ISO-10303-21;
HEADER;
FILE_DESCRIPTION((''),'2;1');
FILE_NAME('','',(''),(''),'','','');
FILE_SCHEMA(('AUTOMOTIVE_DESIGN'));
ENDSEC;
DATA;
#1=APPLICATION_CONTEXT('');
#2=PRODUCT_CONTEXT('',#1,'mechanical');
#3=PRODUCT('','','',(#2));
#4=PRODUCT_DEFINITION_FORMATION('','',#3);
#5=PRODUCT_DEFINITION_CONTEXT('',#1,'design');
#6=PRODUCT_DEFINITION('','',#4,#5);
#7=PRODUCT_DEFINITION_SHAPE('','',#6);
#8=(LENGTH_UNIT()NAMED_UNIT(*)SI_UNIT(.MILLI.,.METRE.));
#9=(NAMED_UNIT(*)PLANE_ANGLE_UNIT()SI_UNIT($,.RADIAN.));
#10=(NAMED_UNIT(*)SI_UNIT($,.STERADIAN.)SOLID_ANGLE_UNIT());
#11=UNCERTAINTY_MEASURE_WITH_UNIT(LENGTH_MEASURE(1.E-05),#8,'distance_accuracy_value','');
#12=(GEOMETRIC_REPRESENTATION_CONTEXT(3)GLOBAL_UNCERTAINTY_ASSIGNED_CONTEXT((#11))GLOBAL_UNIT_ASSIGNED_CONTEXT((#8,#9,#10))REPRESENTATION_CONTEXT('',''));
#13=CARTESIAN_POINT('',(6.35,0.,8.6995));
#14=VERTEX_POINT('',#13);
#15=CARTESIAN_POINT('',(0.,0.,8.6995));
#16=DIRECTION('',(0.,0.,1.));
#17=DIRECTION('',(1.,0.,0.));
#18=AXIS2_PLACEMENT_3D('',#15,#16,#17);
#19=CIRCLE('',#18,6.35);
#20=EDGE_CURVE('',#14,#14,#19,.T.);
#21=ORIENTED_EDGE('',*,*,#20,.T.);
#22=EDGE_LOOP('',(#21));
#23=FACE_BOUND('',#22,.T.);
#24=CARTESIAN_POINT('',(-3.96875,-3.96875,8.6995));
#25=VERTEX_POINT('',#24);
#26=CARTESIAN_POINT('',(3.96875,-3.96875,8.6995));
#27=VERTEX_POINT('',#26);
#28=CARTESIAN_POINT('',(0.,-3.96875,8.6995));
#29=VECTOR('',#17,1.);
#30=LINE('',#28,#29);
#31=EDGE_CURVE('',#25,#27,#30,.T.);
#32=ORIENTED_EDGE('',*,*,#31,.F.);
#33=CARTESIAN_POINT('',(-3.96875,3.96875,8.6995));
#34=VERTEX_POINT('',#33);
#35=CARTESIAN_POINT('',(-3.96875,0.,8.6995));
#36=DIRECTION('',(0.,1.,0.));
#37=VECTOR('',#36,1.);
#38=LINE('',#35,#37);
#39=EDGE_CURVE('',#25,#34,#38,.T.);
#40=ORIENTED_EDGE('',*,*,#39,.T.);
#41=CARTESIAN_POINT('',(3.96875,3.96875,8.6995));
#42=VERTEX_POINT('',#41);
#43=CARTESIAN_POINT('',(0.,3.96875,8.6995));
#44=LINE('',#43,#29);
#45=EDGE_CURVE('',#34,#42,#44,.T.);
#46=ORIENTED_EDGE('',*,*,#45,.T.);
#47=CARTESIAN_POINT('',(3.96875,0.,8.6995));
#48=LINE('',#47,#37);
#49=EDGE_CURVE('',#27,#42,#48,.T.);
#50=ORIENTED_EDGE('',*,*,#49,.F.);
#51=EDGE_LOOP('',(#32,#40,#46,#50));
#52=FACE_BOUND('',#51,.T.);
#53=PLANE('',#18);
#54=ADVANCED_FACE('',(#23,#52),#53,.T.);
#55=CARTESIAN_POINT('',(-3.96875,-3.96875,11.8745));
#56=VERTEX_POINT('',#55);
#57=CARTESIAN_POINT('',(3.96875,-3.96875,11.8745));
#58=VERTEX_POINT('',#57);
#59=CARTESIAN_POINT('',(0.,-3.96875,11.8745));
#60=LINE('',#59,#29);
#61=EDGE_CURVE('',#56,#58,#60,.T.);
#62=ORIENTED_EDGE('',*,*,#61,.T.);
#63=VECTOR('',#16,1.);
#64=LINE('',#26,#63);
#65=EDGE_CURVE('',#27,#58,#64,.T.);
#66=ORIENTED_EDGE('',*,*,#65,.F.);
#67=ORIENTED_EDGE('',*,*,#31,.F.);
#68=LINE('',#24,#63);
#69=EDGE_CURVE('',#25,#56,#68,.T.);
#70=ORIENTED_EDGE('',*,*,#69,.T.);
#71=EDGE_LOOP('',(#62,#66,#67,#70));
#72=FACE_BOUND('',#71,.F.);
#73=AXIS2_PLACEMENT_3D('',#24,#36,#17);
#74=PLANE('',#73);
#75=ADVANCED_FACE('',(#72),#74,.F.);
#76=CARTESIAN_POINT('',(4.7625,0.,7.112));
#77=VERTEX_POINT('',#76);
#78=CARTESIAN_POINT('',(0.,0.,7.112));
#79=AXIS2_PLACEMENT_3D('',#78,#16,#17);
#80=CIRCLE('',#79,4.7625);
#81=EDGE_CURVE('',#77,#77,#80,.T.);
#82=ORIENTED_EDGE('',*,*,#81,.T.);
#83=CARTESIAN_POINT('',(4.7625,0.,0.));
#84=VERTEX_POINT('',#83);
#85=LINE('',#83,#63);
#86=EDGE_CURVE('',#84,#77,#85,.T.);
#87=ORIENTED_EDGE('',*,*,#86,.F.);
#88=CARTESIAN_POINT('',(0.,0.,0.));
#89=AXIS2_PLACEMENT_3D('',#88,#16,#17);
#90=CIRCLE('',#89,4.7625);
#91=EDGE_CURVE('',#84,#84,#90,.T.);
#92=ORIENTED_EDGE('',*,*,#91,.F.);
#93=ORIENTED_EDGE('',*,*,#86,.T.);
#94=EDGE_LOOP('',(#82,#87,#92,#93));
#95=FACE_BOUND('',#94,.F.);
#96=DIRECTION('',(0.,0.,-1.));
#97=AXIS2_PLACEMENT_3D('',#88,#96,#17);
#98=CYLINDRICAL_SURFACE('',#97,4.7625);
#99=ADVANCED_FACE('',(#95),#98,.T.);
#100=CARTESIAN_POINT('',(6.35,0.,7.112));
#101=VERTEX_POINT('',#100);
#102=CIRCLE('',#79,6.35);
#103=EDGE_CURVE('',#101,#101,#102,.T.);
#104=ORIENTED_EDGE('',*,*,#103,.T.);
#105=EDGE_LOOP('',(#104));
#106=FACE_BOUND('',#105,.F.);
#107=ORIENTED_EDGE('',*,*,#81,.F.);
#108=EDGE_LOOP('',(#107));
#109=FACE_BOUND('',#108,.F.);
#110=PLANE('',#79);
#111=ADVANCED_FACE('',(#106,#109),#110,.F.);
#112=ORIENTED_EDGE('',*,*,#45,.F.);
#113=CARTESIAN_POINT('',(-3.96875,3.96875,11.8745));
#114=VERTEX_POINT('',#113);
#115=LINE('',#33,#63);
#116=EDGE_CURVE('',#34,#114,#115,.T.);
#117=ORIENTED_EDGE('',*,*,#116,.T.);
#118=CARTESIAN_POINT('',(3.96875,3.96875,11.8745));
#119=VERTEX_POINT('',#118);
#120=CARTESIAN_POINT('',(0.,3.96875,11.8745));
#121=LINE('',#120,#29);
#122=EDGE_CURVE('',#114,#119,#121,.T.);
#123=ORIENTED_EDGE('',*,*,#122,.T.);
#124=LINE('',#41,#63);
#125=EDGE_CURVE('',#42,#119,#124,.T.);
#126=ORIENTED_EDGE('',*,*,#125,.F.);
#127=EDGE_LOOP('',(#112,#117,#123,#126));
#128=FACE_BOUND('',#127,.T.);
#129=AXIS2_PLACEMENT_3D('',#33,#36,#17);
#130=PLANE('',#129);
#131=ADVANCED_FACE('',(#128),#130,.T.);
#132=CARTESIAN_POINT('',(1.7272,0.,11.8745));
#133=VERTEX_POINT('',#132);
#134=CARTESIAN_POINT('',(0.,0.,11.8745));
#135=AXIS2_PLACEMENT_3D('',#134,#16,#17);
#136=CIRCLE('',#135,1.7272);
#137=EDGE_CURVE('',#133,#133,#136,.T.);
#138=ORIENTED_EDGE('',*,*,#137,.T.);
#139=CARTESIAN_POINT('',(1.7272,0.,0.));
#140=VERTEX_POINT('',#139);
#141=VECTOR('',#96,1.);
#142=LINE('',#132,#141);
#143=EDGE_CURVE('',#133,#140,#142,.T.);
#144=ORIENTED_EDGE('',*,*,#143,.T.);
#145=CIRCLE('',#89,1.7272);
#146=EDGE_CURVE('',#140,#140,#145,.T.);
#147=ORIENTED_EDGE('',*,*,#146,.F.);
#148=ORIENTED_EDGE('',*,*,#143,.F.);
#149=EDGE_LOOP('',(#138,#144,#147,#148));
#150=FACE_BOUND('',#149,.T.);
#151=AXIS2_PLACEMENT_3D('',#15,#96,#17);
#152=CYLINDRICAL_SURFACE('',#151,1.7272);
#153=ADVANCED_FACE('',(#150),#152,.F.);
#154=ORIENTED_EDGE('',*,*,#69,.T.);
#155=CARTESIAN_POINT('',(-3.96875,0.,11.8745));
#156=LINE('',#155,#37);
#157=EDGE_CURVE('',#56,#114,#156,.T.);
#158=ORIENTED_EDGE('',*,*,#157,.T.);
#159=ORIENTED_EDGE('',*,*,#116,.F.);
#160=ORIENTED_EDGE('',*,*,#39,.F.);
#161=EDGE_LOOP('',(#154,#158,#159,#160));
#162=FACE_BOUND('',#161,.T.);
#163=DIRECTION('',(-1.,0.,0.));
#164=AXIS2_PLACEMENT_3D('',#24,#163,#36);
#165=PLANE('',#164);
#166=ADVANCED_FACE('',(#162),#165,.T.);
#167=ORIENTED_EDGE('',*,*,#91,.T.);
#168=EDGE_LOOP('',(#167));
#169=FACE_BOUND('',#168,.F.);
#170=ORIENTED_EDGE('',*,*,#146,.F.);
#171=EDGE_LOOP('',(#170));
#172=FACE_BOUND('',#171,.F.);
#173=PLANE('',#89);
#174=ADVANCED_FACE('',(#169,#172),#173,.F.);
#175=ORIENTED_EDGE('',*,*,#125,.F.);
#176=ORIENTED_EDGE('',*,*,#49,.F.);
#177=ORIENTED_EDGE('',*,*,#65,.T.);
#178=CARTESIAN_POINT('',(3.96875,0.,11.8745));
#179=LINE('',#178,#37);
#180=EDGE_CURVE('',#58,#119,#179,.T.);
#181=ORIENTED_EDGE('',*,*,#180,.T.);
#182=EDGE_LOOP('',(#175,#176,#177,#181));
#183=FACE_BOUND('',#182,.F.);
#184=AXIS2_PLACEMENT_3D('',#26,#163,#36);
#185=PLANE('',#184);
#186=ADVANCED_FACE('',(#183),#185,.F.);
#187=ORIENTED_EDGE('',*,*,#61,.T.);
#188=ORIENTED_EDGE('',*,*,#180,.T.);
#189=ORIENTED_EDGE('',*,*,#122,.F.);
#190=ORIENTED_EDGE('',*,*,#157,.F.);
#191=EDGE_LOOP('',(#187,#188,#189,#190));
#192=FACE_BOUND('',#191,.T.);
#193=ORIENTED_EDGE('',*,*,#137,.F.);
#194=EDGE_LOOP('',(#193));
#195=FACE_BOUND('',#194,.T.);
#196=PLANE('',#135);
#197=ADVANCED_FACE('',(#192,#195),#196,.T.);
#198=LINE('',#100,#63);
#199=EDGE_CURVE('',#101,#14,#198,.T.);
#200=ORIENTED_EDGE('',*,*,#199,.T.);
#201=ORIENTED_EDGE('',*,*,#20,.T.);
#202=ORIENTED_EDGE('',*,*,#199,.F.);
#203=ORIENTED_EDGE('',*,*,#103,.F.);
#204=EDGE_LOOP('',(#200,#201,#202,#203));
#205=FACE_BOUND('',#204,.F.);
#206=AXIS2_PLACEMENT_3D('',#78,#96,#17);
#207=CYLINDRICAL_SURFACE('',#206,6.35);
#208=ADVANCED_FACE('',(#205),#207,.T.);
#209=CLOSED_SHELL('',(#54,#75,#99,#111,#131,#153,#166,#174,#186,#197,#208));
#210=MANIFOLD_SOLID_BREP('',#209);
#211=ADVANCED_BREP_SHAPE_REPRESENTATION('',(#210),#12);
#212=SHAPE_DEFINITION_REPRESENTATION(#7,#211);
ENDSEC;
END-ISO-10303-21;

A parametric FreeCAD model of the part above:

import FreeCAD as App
import Part
import Sketcher
Q = App.Units.Quantity


def add_polygon(sketch, points):
    """Adds a closed chain of lines whose ends are joined by coincident constraints."""
    first, n = sketch.GeometryCount, len(points)
    for a, b in zip(points, points[1:] + points[:1]):
        sketch.addGeometry(Part.LineSegment(App.Vector(*a, 0), App.Vector(*b, 0)), False)
    for i in range(n):
        sketch.addConstraint(Sketcher.Constraint("Coincident", first + i, 2, first + (i + 1) % n, 1))

doc = App.newDocument("Part")
body = doc.addObject("PartDesign::Body", "Body")

# Sketch on XY plane
sketch1 = doc.addObject("Sketcher::SketchObject", "Sketch")
body.addObject(sketch1)
sketch1.AttachmentSupport = (doc.XY_Plane, [""])
sketch1.MapMode = "FlatFace"
sketch1.addGeometry([
    Part.Circle(App.Vector(0, 0, 0), App.Vector(0, 0, 1), 4.8),
    Part.Circle(App.Vector(0, 0, 0), App.Vector(0, 0, 1), 1.7),
], False)
sketch1.addConstraint([
    Sketcher.Constraint("Coincident", 0, 3, -1, 1),
    Sketcher.Constraint("Coincident", 1, 3, -1, 1),
    Sketcher.Constraint("Diameter", 0, Q("0.375 in")),
    Sketcher.Constraint("Diameter", 1, Q("0.136 in")),
])
pad1 = doc.addObject("PartDesign::Pad", "Pad")
body.addObject(pad1)
pad1.Profile = sketch1
pad1.Length = Q("0.28 in")

# Sketch on XY plane
sketch2 = doc.addObject("Sketcher::SketchObject", "Sketch001")
body.addObject(sketch2)
sketch2.AttachmentSupport = (doc.XY_Plane, [""])
sketch2.MapMode = "FlatFace"
sketch2.AttachmentOffset = App.Placement(App.Vector(0, 0, 0.28 * 25.4), App.Rotation())
sketch2.addGeometry([
    Part.Circle(App.Vector(0, 0, 0), App.Vector(0, 0, 1), 6.3),
    Part.Circle(App.Vector(0, 0, 0), App.Vector(0, 0, 1), 1.7),
], False)
sketch2.addConstraint([
    Sketcher.Constraint("Coincident", 0, 3, -1, 1),
    Sketcher.Constraint("Coincident", 1, 3, -1, 1),
    Sketcher.Constraint("Diameter", 0, Q("0.5 in")),
    Sketcher.Constraint("Diameter", 1, Q("0.136 in")),
])
pad2 = doc.addObject("PartDesign::Pad", "Pad001")
body.addObject(pad2)
pad2.Profile = sketch2
pad2.Length = Q("0.0625 in")

# Sketch on XY plane
sketch3 = doc.addObject("Sketcher::SketchObject", "Sketch002")
body.addObject(sketch3)
sketch3.AttachmentSupport = (doc.XY_Plane, [""])
sketch3.MapMode = "FlatFace"
sketch3.AttachmentOffset = App.Placement(App.Vector(0, 0, 0.3425 * 25.4), App.Rotation())
add_polygon(sketch3, [(-4, 4), (-4, -4), (4, -4), (4, 4)])  # lines 0-3
sketch3.addGeometry(Part.Circle(App.Vector(0, 0, 0), App.Vector(0, 0, 1), 1.7), False)  # 4
sketch3.addConstraint([
    Sketcher.Constraint("Vertical", 0),
    Sketcher.Constraint("Horizontal", 1),
    Sketcher.Constraint("Vertical", 2),
    Sketcher.Constraint("Horizontal", 3),
    Sketcher.Constraint("Coincident", 4, 3, -1, 1),
    Sketcher.Constraint("Symmetric", 0, 2, 2, 2, -1, 1),
    Sketcher.Constraint("Equal", 3, 0),
    Sketcher.Constraint("Diameter", 4, Q("0.136 in")),
    Sketcher.Constraint("DistanceX", 1, 1, 1, 2, Q("0.3125 in")),
])
pad3 = doc.addObject("PartDesign::Pad", "Pad002")
body.addObject(pad3)
pad3.Profile = sketch3
pad3.Length = Q("0.125 in")

doc.recompute()
